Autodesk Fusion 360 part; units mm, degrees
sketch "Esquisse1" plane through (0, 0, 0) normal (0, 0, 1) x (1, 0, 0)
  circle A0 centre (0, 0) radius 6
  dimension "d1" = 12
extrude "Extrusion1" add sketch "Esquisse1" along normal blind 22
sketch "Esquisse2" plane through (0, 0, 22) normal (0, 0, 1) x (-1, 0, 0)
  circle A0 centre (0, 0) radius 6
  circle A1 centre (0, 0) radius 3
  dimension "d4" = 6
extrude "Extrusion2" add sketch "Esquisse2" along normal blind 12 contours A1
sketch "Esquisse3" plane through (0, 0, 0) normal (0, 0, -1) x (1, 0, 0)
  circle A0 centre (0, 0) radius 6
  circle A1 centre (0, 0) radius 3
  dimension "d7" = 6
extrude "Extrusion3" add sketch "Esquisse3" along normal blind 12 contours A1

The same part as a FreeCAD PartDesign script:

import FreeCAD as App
import Part
import Sketcher
Q = App.Units.Quantity

doc = App.newDocument("Part")
body = doc.addObject("PartDesign::Body", "Body")

# Sketch on XY plane
sketch1 = doc.addObject("Sketcher::SketchObject", "Sketch")
body.addObject(sketch1)
sketch1.AttachmentSupport = (doc.XY_Plane, [""])
sketch1.MapMode = "FlatFace"
sketch1.addGeometry(Part.Circle(App.Vector(0, 0, 0), App.Vector(0, 0, 1), 6), False)
sketch1.addConstraint(Sketcher.Constraint("Coincident", 0, 3, -1, 1))
sketch1.addConstraint(Sketcher.Constraint("Diameter", 0, Q("12 mm")))
pad1 = doc.addObject("PartDesign::Pad", "Pad")
body.addObject(pad1)
pad1.Profile = sketch1
pad1.Length = 22

# Sketch on XY plane
sketch2 = doc.addObject("Sketcher::SketchObject", "Sketch001")
body.addObject(sketch2)
sketch2.AttachmentSupport = (doc.XY_Plane, [""])
sketch2.MapMode = "FlatFace"
sketch2.AttachmentOffset = App.Placement(App.Vector(0, 0, 22), App.Rotation())
sketch2.addGeometry(Part.Circle(App.Vector(0, 0, 0), App.Vector(0, 0, 1), 3), False)
sketch2.addConstraint(Sketcher.Constraint("Coincident", 0, 3, -1, 1))
sketch2.addConstraint(Sketcher.Constraint("Diameter", 0, Q("6 mm")))
pad2 = doc.addObject("PartDesign::Pad", "Pad001")
body.addObject(pad2)
pad2.Profile = sketch2
pad2.Length = 12

# Sketch on XY plane
sketch3 = doc.addObject("Sketcher::SketchObject", "Sketch002")
body.addObject(sketch3)
sketch3.AttachmentSupport = (doc.XY_Plane, [""])
sketch3.MapMode = "FlatFace"
sketch3.addGeometry(Part.Circle(App.Vector(0, 0, 0), App.Vector(0, 0, 1), 3), False)
sketch3.addConstraint(Sketcher.Constraint("Coincident", 0, 3, -1, 1))
sketch3.addConstraint(Sketcher.Constraint("Diameter", 0, Q("6 mm")))
pad3 = doc.addObject("PartDesign::Pad", "Pad002")
body.addObject(pad3)
pad3.Profile = sketch3
pad3.Length = 12
pad3.Reversed = True

doc.recompute()
